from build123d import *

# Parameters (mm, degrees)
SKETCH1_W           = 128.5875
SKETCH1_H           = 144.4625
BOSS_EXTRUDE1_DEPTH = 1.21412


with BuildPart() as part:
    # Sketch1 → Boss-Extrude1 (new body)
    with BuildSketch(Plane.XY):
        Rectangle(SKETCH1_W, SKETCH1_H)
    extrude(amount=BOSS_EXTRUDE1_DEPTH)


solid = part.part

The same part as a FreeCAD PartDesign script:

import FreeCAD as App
import Part
import Sketcher

V = App.Vector
Q = App.Units.Quantity


def add_polygon(sketch, points):
    """Adds a closed chain of lines whose ends are joined by coincident constraints."""
    first, n = sketch.GeometryCount, len(points)
    for a, b in zip(points, points[1:] + points[:1]):
        sketch.addGeometry(Part.LineSegment(App.Vector(*a, 0), App.Vector(*b, 0)), False)
    for i in range(n):
        sketch.addConstraint(Sketcher.Constraint("Coincident", first + i, 2, first + (i + 1) % n, 1))

doc = App.newDocument("Part")
body = doc.addObject("PartDesign::Body", "Body")

# Sketch on XY plane
sketch1 = doc.addObject("Sketcher::SketchObject", "Sketch")
body.addObject(sketch1)
sketch1.AttachmentSupport = (doc.XY_Plane, [""])
sketch1.MapMode = "FlatFace"
add_polygon(sketch1, [(-64, 72), (-64, -72), (64, -72), (64, 72)])  # lines 0-3
sketch1.addConstraint(Sketcher.Constraint("Vertical", 0))
sketch1.addConstraint(Sketcher.Constraint("Horizontal", 1))
sketch1.addConstraint(Sketcher.Constraint("Vertical", 2))
sketch1.addConstraint(Sketcher.Constraint("Horizontal", 3))
sketch1.addConstraint(Sketcher.Constraint("Symmetric", 0, 2, 2, 2, -1, 1))
sketch1.addConstraint(Sketcher.Constraint("DistanceX", 1, 1, 1, 2, Q("5.0625 in")))
sketch1.addConstraint(Sketcher.Constraint("DistanceY", 0, 2, 0, 1, Q("5.6875 in")))
pad1 = doc.addObject("PartDesign::Pad", "Pad")
body.addObject(pad1)
pad1.Profile = sketch1
pad1.Length = Q("0.0478 in")

doc.recompute()
